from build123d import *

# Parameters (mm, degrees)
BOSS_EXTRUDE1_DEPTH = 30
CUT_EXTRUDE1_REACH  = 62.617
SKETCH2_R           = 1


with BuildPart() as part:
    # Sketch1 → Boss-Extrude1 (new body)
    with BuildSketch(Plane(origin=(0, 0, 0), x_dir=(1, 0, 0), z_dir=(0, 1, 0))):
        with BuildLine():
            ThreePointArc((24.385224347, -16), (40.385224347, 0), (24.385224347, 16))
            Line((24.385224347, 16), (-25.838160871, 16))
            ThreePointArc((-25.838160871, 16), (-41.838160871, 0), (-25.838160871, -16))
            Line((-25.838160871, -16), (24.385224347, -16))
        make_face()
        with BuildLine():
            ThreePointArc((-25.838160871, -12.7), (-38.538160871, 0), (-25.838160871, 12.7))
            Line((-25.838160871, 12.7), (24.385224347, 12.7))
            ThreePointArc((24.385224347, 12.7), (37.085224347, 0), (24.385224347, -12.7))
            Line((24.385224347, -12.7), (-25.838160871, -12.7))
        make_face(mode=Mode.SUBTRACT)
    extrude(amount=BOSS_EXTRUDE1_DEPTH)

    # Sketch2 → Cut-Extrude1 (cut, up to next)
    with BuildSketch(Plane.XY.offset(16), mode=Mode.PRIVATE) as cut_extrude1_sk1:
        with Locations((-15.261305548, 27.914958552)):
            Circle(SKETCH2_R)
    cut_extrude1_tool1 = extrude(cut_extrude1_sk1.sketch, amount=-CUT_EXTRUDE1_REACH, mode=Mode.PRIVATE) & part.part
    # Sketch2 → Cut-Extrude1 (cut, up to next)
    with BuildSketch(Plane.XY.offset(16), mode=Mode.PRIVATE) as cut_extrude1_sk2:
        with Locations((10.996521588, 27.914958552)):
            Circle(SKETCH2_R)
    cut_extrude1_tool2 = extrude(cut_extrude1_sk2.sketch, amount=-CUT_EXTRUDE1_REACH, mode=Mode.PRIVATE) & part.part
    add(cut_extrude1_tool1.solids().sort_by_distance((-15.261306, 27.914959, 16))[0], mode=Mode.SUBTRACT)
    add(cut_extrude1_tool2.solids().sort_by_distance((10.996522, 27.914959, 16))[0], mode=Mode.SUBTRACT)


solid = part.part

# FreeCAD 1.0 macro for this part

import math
import FreeCAD as App
import Part
import Sketcher
from FreeCAD import Vector
Q = App.Units.Quantity

doc = App.newDocument("Part")
body = doc.addObject("PartDesign::Body", "Body")

# Sketch on XZ plane
sketch1 = doc.addObject("Sketcher::SketchObject", "Sketch")
body.addObject(sketch1)
sketch1.AttachmentSupport = (doc.XZ_Plane, [""])
sketch1.MapMode = "FlatFace"
sketch1.addGeometry(Part.ArcOfCircle(Part.Circle(Vector(24.385224, 0, 0), Vector(0, 0, 1), 16), math.radians(-90), math.radians(90)), False)
sketch1.addGeometry(Part.LineSegment(Vector(24.385224, -16, 0), Vector(-25.838161, -16, 0)), False)
sketch1.addGeometry(Part.ArcOfCircle(Part.Circle(Vector(-25.838161, 0, 0), Vector(0, 0, 1), 16), math.radians(90), math.radians(270)), False)
sketch1.addGeometry(Part.LineSegment(Vector(-25.838161, 16, 0), Vector(24.385224, 16, 0)), False)
sketch1.addGeometry(Part.LineSegment(Vector(24.385224, 12.7, 0), Vector(-25.838161, 12.7, 0)), False)
sketch1.addGeometry(Part.ArcOfCircle(Part.Circle(Vector(-25.838161, 0, 0), Vector(0, 0, 1), 12.7), math.radians(90), math.radians(270)), False)
sketch1.addGeometry(Part.LineSegment(Vector(-25.838161, -12.7, 0), Vector(24.385224, -12.7, 0)), False)
sketch1.addGeometry(Part.ArcOfCircle(Part.Circle(Vector(24.385224, 0, 0), Vector(0, 0, 1), 12.7), math.radians(-90), math.radians(90)), False)
sketch1.addConstraint(Sketcher.Constraint("Tangent", 0, 1, 1, 1))
sketch1.addConstraint(Sketcher.Constraint("Tangent", 1, 2, 2, 2))
sketch1.addConstraint(Sketcher.Constraint("Tangent", 2, 1, 3, 1))
sketch1.addConstraint(Sketcher.Constraint("Tangent", 3, 2, 0, 2))
sketch1.addConstraint(Sketcher.Constraint("Tangent", 4, 2, 5, 1))
sketch1.addConstraint(Sketcher.Constraint("Tangent", 5, 2, 6, 1))
sketch1.addConstraint(Sketcher.Constraint("Tangent", 6, 2, 7, 1))
sketch1.addConstraint(Sketcher.Constraint("Tangent", 7, 2, 4, 1))
sketch1.addConstraint(Sketcher.Constraint("Horizontal", 1))
sketch1.addConstraint(Sketcher.Constraint("Horizontal", 3))
sketch1.addConstraint(Sketcher.Constraint("Horizontal", 4))
sketch1.addConstraint(Sketcher.Constraint("Horizontal", 6))
sketch1.addConstraint(Sketcher.Constraint("Coincident", 5, 3, 2, 3))
sketch1.addConstraint(Sketcher.Constraint("PointOnObject", 0, 3, -1))
sketch1.addConstraint(Sketcher.Constraint("Vertical", 7, 3, 0, 1))
sketch1.addConstraint(Sketcher.Constraint("Radius", 0, Q("16 mm")))
sketch1.addConstraint(Sketcher.Constraint("Radius", 5, Q("12.7 mm")))
sketch1.addConstraint(Sketcher.Constraint("DistanceX", 1, 2, 1, 1, Q("50.223385 mm")))
sketch1.addConstraint(Sketcher.Constraint("DistanceX", 2, 3, -1, 1, Q("25.838161 mm")))
pad1 = doc.addObject("PartDesign::Pad", "Pad")
body.addObject(pad1)
pad1.Profile = sketch1
pad1.Length = 30
pad1.Reversed = True

# Sketch on XY plane
sketch2 = doc.addObject("Sketcher::SketchObject", "Sketch001")
body.addObject(sketch2)
sketch2.AttachmentSupport = (doc.XY_Plane, [""])
sketch2.MapMode = "FlatFace"
sketch2.AttachmentOffset = App.Placement(Vector(0, 0, 16), App.Rotation())
sketch2.addGeometry(Part.Circle(Vector(-15.261306, 27.914959, 0), Vector(0, 0, 1), 1), False)
sketch2.addConstraint(Sketcher.Constraint("Diameter", 0, Q("2 mm")))
sketch2.addConstraint(Sketcher.Constraint("DistanceY", -1, 1, 0, 3, Q("27.914959 mm")))
sketch2.addConstraint(Sketcher.Constraint("DistanceX", 0, 3, -1, 1, Q("15.261306 mm")))
pocket1 = doc.addObject("PartDesign::Pocket", "Pocket")
body.addObject(pocket1)
pocket1.Profile = sketch2
pocket1.Type = "UpToFirst"

# Sketch on XY plane
sketch3 = doc.addObject("Sketcher::SketchObject", "Sketch002")
body.addObject(sketch3)
sketch3.AttachmentSupport = (doc.XY_Plane, [""])
sketch3.MapMode = "FlatFace"
sketch3.AttachmentOffset = App.Placement(Vector(0, 0, 16), App.Rotation())
sketch3.addGeometry(Part.Circle(Vector(10.996522, 27.914959, 0), Vector(0, 0, 1), 1), False)
sketch3.addConstraint(Sketcher.Constraint("Diameter", 0, Q("2 mm")))
sketch3.addConstraint(Sketcher.Constraint("DistanceX", -1, 1, 0, 3, Q("10.996522 mm")))
sketch3.addConstraint(Sketcher.Constraint("DistanceY", -1, 1, 0, 3, Q("27.914959 mm")))
pocket2 = doc.addObject("PartDesign::Pocket", "Pocket001")
body.addObject(pocket2)
pocket2.Profile = sketch3
pocket2.Type = "UpToFirst"

doc.recompute()
